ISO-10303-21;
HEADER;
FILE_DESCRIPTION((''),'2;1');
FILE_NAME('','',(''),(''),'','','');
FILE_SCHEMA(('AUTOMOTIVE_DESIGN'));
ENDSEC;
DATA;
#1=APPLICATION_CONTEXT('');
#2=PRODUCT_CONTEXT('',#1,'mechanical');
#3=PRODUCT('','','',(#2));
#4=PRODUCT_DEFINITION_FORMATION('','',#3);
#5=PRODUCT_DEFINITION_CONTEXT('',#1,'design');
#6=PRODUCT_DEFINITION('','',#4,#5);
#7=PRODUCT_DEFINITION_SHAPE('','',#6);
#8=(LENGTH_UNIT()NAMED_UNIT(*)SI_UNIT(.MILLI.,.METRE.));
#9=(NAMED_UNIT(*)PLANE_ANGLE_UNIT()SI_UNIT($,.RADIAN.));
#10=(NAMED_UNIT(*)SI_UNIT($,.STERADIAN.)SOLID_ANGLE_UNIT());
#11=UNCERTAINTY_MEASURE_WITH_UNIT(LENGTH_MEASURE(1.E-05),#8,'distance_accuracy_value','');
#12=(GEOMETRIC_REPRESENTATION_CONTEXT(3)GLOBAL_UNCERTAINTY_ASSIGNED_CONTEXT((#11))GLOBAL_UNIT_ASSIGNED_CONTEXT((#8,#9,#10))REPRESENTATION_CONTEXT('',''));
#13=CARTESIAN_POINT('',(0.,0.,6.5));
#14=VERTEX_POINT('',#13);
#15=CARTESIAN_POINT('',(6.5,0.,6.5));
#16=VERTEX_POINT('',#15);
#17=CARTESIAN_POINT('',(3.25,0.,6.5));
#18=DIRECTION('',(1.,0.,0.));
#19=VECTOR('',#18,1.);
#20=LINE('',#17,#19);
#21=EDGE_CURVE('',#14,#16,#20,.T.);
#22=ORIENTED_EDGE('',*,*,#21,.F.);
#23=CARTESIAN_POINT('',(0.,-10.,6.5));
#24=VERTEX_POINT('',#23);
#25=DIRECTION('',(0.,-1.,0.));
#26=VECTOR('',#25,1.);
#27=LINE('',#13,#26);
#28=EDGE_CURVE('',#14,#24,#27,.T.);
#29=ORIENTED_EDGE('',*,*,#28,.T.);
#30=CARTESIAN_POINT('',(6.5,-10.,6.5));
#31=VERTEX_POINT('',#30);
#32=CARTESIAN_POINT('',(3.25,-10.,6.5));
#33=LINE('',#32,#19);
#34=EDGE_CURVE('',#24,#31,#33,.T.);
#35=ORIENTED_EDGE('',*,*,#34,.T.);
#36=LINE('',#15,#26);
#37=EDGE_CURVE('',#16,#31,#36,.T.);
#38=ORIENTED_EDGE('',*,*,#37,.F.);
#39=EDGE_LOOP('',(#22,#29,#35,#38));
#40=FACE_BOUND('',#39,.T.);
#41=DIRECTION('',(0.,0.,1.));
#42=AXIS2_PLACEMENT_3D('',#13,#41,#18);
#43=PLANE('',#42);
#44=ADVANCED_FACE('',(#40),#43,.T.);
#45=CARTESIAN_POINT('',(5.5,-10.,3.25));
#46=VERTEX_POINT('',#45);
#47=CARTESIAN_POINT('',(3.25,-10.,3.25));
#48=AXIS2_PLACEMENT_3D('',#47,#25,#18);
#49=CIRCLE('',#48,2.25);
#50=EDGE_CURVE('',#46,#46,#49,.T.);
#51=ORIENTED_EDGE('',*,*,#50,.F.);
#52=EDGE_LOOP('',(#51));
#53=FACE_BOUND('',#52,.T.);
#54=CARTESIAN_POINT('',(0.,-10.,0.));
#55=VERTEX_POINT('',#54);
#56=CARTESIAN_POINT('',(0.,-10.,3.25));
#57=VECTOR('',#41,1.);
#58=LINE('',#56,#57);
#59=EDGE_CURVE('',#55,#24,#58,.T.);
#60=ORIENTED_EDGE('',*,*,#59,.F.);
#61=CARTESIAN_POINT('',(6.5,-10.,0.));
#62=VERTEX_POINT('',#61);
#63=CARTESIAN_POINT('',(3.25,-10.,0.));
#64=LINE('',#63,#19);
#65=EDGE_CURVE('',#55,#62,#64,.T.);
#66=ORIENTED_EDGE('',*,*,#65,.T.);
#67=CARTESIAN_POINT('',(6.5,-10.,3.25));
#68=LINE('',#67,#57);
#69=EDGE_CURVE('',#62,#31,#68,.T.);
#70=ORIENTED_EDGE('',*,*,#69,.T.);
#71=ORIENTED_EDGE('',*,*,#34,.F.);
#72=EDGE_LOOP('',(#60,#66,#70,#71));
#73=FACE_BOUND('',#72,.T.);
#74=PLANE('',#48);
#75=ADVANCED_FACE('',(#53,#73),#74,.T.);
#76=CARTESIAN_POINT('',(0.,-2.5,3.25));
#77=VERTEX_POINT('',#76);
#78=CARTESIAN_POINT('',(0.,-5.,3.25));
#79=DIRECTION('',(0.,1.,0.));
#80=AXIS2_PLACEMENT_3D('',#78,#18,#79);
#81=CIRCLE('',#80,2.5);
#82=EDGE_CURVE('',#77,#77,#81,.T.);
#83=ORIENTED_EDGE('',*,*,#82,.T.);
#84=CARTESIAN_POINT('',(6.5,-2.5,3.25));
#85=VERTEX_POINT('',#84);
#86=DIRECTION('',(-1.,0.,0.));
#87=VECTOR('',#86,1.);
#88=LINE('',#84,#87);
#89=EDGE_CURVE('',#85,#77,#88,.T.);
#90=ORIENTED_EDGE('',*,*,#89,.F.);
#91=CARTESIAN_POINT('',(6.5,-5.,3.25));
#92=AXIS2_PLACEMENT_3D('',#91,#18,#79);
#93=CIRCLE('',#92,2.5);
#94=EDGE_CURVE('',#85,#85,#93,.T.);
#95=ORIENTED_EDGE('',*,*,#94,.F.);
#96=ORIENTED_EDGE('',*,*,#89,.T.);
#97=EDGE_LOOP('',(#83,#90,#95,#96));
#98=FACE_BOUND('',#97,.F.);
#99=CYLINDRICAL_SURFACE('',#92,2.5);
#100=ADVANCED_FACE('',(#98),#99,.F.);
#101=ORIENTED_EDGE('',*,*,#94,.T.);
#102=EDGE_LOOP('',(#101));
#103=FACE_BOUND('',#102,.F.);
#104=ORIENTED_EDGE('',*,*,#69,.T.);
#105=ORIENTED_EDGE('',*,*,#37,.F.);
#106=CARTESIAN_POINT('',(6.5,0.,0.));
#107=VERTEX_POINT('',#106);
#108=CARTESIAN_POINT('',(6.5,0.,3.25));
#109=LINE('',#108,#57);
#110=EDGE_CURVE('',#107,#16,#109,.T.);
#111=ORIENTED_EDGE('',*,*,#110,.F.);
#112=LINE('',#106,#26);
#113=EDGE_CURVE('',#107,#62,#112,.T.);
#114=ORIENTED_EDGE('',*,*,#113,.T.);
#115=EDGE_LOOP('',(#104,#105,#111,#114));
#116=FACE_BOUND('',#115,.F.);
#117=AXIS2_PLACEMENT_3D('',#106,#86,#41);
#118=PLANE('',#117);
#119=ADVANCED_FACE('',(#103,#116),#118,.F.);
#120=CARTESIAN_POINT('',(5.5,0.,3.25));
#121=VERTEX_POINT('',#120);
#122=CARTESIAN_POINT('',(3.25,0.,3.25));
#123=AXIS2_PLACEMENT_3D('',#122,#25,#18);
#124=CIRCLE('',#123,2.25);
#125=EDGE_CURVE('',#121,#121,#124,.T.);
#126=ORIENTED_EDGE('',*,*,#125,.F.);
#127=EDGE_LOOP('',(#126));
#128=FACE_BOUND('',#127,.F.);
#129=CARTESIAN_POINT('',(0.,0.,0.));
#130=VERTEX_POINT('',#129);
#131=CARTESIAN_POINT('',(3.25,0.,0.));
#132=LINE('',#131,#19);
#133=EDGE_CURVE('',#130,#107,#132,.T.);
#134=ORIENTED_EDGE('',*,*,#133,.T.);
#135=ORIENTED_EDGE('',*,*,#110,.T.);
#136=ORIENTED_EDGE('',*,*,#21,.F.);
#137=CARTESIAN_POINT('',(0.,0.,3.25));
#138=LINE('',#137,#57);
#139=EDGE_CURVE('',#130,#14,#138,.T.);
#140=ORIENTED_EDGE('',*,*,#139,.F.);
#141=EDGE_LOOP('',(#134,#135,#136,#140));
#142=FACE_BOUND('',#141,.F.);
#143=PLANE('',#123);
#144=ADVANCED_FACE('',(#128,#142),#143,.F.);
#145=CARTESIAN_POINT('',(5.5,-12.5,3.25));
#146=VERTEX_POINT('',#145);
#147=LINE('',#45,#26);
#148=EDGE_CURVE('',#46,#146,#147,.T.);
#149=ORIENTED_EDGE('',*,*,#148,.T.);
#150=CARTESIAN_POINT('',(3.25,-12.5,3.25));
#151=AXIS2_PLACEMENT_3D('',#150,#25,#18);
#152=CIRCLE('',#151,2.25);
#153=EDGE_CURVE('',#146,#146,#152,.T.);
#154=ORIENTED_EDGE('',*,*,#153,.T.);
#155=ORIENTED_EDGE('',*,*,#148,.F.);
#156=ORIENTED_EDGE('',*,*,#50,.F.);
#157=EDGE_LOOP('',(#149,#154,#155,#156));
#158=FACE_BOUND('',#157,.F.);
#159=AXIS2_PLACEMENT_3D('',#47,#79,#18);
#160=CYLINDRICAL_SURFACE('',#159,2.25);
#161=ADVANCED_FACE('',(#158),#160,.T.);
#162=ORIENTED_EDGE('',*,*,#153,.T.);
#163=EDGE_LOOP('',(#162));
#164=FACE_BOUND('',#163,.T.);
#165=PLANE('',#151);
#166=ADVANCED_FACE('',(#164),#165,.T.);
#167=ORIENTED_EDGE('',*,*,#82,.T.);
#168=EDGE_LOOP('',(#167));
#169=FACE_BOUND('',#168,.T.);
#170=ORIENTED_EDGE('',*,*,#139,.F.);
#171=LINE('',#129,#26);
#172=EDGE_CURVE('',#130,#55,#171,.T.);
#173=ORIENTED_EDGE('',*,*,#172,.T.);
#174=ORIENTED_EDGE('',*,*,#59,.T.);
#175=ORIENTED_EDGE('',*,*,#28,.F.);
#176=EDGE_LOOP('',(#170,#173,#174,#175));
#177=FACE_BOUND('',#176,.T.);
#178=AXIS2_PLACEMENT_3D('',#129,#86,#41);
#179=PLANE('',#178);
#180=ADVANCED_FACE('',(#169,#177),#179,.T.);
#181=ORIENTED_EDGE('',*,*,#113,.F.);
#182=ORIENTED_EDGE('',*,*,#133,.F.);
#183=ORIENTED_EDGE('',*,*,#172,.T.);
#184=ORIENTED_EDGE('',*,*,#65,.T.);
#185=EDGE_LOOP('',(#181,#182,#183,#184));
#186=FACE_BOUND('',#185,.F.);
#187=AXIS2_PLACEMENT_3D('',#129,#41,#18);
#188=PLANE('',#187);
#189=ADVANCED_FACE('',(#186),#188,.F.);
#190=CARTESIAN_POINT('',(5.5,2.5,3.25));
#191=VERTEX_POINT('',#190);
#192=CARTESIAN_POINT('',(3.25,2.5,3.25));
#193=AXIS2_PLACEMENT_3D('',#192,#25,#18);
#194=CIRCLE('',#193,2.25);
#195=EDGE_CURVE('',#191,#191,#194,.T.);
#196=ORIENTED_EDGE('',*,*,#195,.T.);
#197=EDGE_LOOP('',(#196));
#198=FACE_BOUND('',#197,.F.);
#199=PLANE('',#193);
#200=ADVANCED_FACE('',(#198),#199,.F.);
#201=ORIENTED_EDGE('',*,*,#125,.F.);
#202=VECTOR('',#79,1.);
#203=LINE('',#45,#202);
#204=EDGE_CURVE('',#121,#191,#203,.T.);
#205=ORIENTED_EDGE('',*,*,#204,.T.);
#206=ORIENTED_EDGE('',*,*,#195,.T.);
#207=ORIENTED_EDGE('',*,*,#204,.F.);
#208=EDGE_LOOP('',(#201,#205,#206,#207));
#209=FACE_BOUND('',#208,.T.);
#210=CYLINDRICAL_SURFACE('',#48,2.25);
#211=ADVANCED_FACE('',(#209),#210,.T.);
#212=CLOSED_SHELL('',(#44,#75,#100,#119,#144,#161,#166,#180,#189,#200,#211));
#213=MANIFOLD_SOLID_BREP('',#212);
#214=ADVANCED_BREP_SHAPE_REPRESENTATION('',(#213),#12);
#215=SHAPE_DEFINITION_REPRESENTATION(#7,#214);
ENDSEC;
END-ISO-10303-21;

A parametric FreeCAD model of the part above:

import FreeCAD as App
import Part
import Sketcher
Q = App.Units.Quantity


def add_polygon(sketch, points):
    """Adds a closed chain of lines whose ends are joined by coincident constraints."""
    first, n = sketch.GeometryCount, len(points)
    for a, b in zip(points, points[1:] + points[:1]):
        sketch.addGeometry(Part.LineSegment(App.Vector(*a, 0), App.Vector(*b, 0)), False)
    for i in range(n):
        sketch.addConstraint(Sketcher.Constraint("Coincident", first + i, 2, first + (i + 1) % n, 1))

doc = App.newDocument("Part")
params = doc.addObject("Spreadsheet::Sheet", "Params")
for row, (alias, value) in enumerate([
    ("sketch1_width", "6.5 mm"),
    ("pad1_length", "10 mm"),
    ("sketch2_diameter", "4.5 mm"),
    ("pad2_length", "2.5 mm"),
    ("pad2_length2", "12.5 mm"),
    ("sketch3_diameter", "5 mm"),
    ("pocket1_length", "25 mm"),
], start=1):
    params.set(f"A{row}", alias)
    params.set(f"B{row}", "=" + value)
    params.setAlias(f"B{row}", alias)

body = doc.addObject("PartDesign::Body", "Body")

# Sketch on XZ plane
sketch1 = body.newObject("Sketcher::SketchObject", "Sketch")
sketch1.AttachmentSupport = (doc.getObject("XZ_Plane"), [""])
sketch1.MapMode = "FlatFace"
add_polygon(sketch1, [(0, 6), (0, 0), (6, 0), (6, 6)])  # lines 0-3
sketch1.addConstraint([
    Sketcher.Constraint("Vertical", 0),
    Sketcher.Constraint("Horizontal", 1),
    Sketcher.Constraint("Vertical", 2),
    Sketcher.Constraint("Horizontal", 3),
    Sketcher.Constraint("Coincident", 0, 2, -1, 1),
    Sketcher.Constraint("Equal", 3, 0),
    Sketcher.Constraint("DistanceX", 1, 1, 1, 2, Q("6.5 mm")),
])
sketch1.setExpression("Constraints[10]", "Params.sketch1_width")
pad1 = body.newObject("PartDesign::Pad", "Pad")
pad1.Profile = sketch1
pad1.setExpression("Length", "Params.pad1_length")

# Sketch on XZ plane
sketch2 = body.newObject("Sketcher::SketchObject", "Sketch001")
sketch2.AttachmentSupport = (doc.getObject("XZ_Plane"), [""])
sketch2.MapMode = "FlatFace"
sketch2.AttachmentOffset = App.Placement(App.Vector(0, 0, 10), App.Rotation())
sketch2.addGeometry(Part.Circle(App.Vector(3.2, 3.2, 0), App.Vector(0, 0, 1), 2.2), False)
sketch2.addConstraint([
    Sketcher.Constraint("Diameter", 0, Q("4.5 mm")),
    Sketcher.Constraint("DistanceX", -1, 1, 0, 3, Q("3.25 mm")),
    Sketcher.Constraint("DistanceY", -1, 1, 0, 3, Q("3.25 mm")),
])
sketch2.setExpression("Constraints[0]", "Params.sketch2_diameter")
pad2 = body.newObject("PartDesign::Pad", "Pad001")
pad2.Profile = sketch2
pad2.Type = "TwoLengths"
pad2.setExpression("Length", "Params.pad2_length")
pad2.setExpression("Length2", "Params.pad2_length2")

# Sketch on YZ plane
sketch3 = body.newObject("Sketcher::SketchObject", "Sketch002")
sketch3.AttachmentSupport = (doc.getObject("YZ_Plane"), [""])
sketch3.MapMode = "FlatFace"
sketch3.AttachmentOffset = App.Placement(App.Vector(0, 0, 6.5), App.Rotation())
sketch3.addGeometry(Part.Circle(App.Vector(-5, 3.2, 0), App.Vector(0, 0, 1), 2.5), False)
sketch3.addConstraint([
    Sketcher.Constraint("Diameter", 0, Q("5 mm")),
    Sketcher.Constraint("DistanceX", 0, 3, -1, 1, Q("5 mm")),
    Sketcher.Constraint("DistanceY", -1, 1, 0, 3, Q("3.25 mm")),
])
sketch3.setExpression("Constraints[0]", "Params.sketch3_diameter")
pocket1 = body.newObject("PartDesign::Pocket", "Pocket")
pocket1.Profile = sketch3
pocket1.setExpression("Length", "Params.pocket1_length")

doc.recompute()
